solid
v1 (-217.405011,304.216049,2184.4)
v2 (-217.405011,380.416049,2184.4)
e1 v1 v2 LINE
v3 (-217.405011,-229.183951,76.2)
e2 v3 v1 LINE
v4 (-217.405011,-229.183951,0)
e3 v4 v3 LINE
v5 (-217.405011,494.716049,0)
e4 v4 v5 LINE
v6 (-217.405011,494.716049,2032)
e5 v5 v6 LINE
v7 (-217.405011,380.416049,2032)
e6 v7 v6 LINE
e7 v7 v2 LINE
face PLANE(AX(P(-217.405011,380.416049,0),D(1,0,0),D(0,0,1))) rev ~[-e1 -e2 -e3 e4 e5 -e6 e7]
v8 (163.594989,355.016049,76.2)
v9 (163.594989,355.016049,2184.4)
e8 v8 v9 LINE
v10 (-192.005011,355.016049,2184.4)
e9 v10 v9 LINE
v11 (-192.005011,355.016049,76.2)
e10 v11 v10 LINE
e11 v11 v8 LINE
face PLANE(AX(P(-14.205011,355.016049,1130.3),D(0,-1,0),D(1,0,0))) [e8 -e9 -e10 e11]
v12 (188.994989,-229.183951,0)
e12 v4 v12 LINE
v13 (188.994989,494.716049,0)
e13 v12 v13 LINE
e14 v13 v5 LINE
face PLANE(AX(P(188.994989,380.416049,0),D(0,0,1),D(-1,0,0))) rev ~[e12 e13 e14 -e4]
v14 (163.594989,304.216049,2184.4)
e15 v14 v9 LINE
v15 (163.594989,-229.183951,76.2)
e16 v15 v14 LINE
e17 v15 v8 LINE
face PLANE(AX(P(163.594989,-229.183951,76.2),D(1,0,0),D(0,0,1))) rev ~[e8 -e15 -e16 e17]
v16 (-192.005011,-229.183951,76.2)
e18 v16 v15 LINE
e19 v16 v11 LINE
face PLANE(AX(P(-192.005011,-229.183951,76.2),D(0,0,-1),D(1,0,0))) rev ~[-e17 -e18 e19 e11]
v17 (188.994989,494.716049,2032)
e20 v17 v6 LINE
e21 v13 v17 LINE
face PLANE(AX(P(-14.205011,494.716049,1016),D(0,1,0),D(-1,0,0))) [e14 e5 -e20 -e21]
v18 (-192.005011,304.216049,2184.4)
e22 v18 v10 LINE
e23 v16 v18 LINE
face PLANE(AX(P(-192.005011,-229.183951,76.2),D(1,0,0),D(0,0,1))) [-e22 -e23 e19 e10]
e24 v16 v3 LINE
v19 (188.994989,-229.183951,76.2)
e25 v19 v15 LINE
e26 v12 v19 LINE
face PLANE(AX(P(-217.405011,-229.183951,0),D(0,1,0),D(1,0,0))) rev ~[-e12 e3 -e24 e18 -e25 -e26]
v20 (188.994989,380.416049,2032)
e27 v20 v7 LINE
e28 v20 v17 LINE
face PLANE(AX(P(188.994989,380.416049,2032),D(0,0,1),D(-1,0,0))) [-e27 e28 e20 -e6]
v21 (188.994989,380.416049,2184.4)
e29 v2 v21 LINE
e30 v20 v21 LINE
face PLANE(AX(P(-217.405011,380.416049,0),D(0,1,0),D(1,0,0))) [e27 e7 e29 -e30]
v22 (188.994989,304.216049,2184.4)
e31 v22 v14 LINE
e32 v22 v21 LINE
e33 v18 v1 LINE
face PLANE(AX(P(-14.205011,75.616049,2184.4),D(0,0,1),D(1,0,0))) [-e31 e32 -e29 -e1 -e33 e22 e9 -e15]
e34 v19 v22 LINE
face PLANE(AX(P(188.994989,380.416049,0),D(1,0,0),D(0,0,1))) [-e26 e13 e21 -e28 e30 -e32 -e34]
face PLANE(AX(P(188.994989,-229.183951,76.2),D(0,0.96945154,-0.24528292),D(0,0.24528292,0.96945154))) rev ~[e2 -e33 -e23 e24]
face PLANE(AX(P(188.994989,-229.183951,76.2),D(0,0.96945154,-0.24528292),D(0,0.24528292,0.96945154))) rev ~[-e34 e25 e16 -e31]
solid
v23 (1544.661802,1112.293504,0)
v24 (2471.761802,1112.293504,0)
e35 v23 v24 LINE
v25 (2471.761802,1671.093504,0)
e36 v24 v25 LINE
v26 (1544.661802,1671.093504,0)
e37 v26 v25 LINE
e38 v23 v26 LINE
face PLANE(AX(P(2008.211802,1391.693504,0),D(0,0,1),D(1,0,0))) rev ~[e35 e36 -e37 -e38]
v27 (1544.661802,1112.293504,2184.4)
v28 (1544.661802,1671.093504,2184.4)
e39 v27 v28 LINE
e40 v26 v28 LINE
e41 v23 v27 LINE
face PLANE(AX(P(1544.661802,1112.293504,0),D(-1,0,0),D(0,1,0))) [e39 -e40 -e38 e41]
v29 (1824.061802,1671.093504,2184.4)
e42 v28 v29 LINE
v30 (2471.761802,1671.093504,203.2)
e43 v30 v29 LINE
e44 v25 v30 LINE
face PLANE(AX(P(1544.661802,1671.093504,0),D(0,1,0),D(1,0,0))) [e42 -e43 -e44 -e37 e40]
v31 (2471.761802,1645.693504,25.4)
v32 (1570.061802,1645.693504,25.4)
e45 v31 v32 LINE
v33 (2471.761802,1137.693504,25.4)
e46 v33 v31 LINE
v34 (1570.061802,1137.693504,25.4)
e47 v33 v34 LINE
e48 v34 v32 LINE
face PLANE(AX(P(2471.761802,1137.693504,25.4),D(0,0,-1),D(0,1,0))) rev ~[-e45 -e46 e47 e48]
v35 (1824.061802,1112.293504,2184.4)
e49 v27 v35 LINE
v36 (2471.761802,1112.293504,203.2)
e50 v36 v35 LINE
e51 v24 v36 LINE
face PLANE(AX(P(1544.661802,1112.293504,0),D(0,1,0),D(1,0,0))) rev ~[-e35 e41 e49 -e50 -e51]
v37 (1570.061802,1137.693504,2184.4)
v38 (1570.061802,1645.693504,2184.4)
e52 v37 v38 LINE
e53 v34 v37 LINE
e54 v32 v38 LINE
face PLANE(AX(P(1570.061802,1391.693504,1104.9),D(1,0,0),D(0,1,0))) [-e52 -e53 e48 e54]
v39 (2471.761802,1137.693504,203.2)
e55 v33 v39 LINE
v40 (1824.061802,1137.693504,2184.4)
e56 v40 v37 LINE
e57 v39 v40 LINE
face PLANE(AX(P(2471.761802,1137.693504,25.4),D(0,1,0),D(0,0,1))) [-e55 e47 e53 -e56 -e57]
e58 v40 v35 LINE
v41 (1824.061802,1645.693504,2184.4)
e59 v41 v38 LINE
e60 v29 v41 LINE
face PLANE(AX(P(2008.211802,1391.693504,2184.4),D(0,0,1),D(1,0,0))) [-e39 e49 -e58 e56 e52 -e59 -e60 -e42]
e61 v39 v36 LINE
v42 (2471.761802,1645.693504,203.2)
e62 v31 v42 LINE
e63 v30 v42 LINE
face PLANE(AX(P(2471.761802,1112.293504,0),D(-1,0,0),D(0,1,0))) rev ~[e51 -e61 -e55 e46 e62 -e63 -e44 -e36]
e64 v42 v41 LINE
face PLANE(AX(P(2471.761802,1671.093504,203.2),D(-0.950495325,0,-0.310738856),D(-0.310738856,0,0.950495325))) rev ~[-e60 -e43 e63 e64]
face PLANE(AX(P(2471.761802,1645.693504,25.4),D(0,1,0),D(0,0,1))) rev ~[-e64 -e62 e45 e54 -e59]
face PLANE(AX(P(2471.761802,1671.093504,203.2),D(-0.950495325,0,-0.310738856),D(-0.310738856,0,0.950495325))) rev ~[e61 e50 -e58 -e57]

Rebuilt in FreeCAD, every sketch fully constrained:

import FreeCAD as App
import Part
import Sketcher
Q = App.Units.Quantity

doc = App.newDocument("Part")
body = doc.addObject("PartDesign::Body", "Body")

# Sketch on XY plane
sketch1 = body.newObject("Sketcher::SketchObject", "Sketch")
sketch1.AttachmentSupport = (doc.getObject("XY_Plane"), [""])
sketch1.MapMode = "FlatFace"
sketch1.addGeometry([
    Part.LineSegment(App.Vector(-217, 380, 0), App.Vector(-217, -229, 0)),
    Part.LineSegment(App.Vector(-217, -229, 0), App.Vector(189, -229, 0)),
    Part.LineSegment(App.Vector(189, -229, 0), App.Vector(189, 380, 0)),
    Part.LineSegment(App.Vector(189, 380, 0), App.Vector(-217, 380, 0)),
], False)
sketch1.addConstraint([
    Sketcher.Constraint("Coincident", 0, 2, 1, 1),
    Sketcher.Constraint("Coincident", 1, 2, 2, 1),
    Sketcher.Constraint("Coincident", 2, 2, 3, 1),
    Sketcher.Constraint("Coincident", 3, 2, 0, 1),
    Sketcher.Constraint("Vertical", 0),
    Sketcher.Constraint("Horizontal", 1),
    Sketcher.Constraint("Vertical", 2),
    Sketcher.Constraint("Horizontal", 3),
    Sketcher.Constraint("DistanceX", 1, 1, 1, 2, Q("16 in")),
    Sketcher.Constraint("DistanceY", 0, 2, 0, 1, Q("24 in")),
    Sketcher.Constraint("DistanceX", 0, 2, -1, 1, 217.405011),
    Sketcher.Constraint("DistanceY", 0, 2, -1, 1, 229.183951),
])
pad1 = body.newObject("PartDesign::Pad", "Pad")
pad1.Profile = sketch1
pad1.Length = Q("86 in")

# Sketch on XZ plane
sketch2 = body.newObject("Sketcher::SketchObject", "Sketch001")
sketch2.AttachmentSupport = (doc.getObject("XZ_Plane"), [""])
sketch2.MapMode = "FlatFace"
sketch2.AttachmentOffset = App.Placement(App.Vector(0, 0, 229.183951), App.Rotation())
sketch2.addGeometry([
    Part.LineSegment(App.Vector(-192, 2184, 0), App.Vector(-192, 76, 0)),
    Part.LineSegment(App.Vector(-192, 76, 0), App.Vector(164, 76, 0)),
    Part.LineSegment(App.Vector(164, 76, 0), App.Vector(164, 2184, 0)),
    Part.LineSegment(App.Vector(164, 2184, 0), App.Vector(-192, 2184, 0)),
], False)
sketch2.addConstraint([
    Sketcher.Constraint("Coincident", 0, 2, 1, 1),
    Sketcher.Constraint("Coincident", 1, 2, 2, 1),
    Sketcher.Constraint("Coincident", 2, 2, 3, 1),
    Sketcher.Constraint("Coincident", 3, 2, 0, 1),
    Sketcher.Constraint("Vertical", 0),
    Sketcher.Constraint("Horizontal", 1),
    Sketcher.Constraint("Vertical", 2),
    Sketcher.Constraint("Horizontal", 3),
    Sketcher.Constraint("DistanceX", 1, 1, 1, 2, Q("14 in")),
    Sketcher.Constraint("DistanceY", 0, 2, 0, 1, Q("83 in")),
    Sketcher.Constraint("DistanceY", -1, 1, 0, 2, Q("3 in")),
    Sketcher.Constraint("DistanceX", 0, 2, -1, 1, 192.005011),
])
pocket1 = body.newObject("PartDesign::Pocket", "Pocket")
pocket1.Profile = sketch2
pocket1.Length = Q("23 in")

# Sketch on YZ plane
sketch3 = body.newObject("Sketcher::SketchObject", "Sketch002")
sketch3.AttachmentSupport = (doc.getObject("YZ_Plane"), [""])
sketch3.MapMode = "FlatFace"
sketch3.AttachmentOffset = App.Placement(App.Vector(0, 0, 188.994989), App.Rotation())
sketch3.addGeometry([
    Part.LineSegment(App.Vector(-229, 2184, 0), App.Vector(-229, 76, 0)),
    Part.LineSegment(App.Vector(-229, 76, 0), App.Vector(304, 2184, 0)),
    Part.LineSegment(App.Vector(304, 2184, 0), App.Vector(-229, 2184, 0)),
], False)
sketch3.addConstraint([
    Sketcher.Constraint("Coincident", 0, 2, 1, 1),
    Sketcher.Constraint("Coincident", 1, 2, 2, 1),
    Sketcher.Constraint("Coincident", 2, 2, 0, 1),
    Sketcher.Constraint("Vertical", 0),
    Sketcher.Constraint("Horizontal", 2),
    Sketcher.Constraint("DistanceX", 2, 2, 2, 1, Q("21 in")),
    Sketcher.Constraint("DistanceY", 0, 2, 0, 1, Q("83 in")),
    Sketcher.Constraint("DistanceY", -1, 1, 0, 2, Q("3 in")),
    Sketcher.Constraint("DistanceX", 0, 2, -1, 1, 229.183951),
])
pocket2 = body.newObject("PartDesign::Pocket", "Pocket001")
pocket2.Profile = sketch3
pocket2.Length = Q("16 in")

# Sketch on XZ plane
sketch4 = body.newObject("Sketcher::SketchObject", "Sketch003")
sketch4.AttachmentSupport = (doc.getObject("XZ_Plane"), [""])
sketch4.MapMode = "FlatFace"
sketch4.AttachmentOffset = App.Placement(App.Vector(0, 0, -380.416049), App.Rotation())
sketch4.addGeometry([
    Part.LineSegment(App.Vector(189, 2032, 0), App.Vector(189, 0, 0)),
    Part.LineSegment(App.Vector(189, 0, 0), App.Vector(-217, 0, 0)),
    Part.LineSegment(App.Vector(-217, 0, 0), App.Vector(-217, 2032, 0)),
    Part.LineSegment(App.Vector(-217, 2032, 0), App.Vector(189, 2032, 0)),
], False)
sketch4.addConstraint([
    Sketcher.Constraint("Coincident", 0, 2, 1, 1),
    Sketcher.Constraint("Coincident", 1, 2, 2, 1),
    Sketcher.Constraint("Coincident", 2, 2, 3, 1),
    Sketcher.Constraint("Coincident", 3, 2, 0, 1),
    Sketcher.Constraint("Vertical", 0),
    Sketcher.Constraint("Horizontal", 1),
    Sketcher.Constraint("Vertical", 2),
    Sketcher.Constraint("Horizontal", 3),
    Sketcher.Constraint("PointOnObject", 0, 2, -1),
    Sketcher.Constraint("DistanceX", 1, 2, 1, 1, Q("16 in")),
    Sketcher.Constraint("DistanceY", 0, 2, 0, 1, Q("80 in")),
    Sketcher.Constraint("DistanceX", -1, 1, 0, 2, 188.994989),
])
pad2 = body.newObject("PartDesign::Pad", "Pad001")
pad2.Profile = sketch4
pad2.Length = Q("4.5 in")
pad2.Reversed = True
body2 = doc.addObject("PartDesign::Body", "Body001")

# Sketch on XY plane
sketch5 = body2.newObject("Sketcher::SketchObject", "Sketch004")
sketch5.AttachmentSupport = (doc.getObject("XY_Plane001"), [""])
sketch5.MapMode = "FlatFace"
sketch5.addGeometry([
    Part.LineSegment(App.Vector(1545, 1671, 0), App.Vector(1545, 1112, 0)),
    Part.LineSegment(App.Vector(1545, 1112, 0), App.Vector(2472, 1112, 0)),
    Part.LineSegment(App.Vector(2472, 1112, 0), App.Vector(2472, 1671, 0)),
    Part.LineSegment(App.Vector(2472, 1671, 0), App.Vector(1545, 1671, 0)),
], False)
sketch5.addConstraint([
    Sketcher.Constraint("Coincident", 0, 2, 1, 1),
    Sketcher.Constraint("Coincident", 1, 2, 2, 1),
    Sketcher.Constraint("Coincident", 2, 2, 3, 1),
    Sketcher.Constraint("Coincident", 3, 2, 0, 1),
    Sketcher.Constraint("Vertical", 0),
    Sketcher.Constraint("Horizontal", 1),
    Sketcher.Constraint("Vertical", 2),
    Sketcher.Constraint("Horizontal", 3),
    Sketcher.Constraint("DistanceY", 0, 2, 0, 1, Q("22 in")),
    Sketcher.Constraint("DistanceX", 1, 1, 1, 2, Q("36.5 in")),
    Sketcher.Constraint("DistanceX", -1, 1, 0, 2, 1544.661802),
    Sketcher.Constraint("DistanceY", -1, 1, 0, 2, 1112.293504),
])
pad3 = body2.newObject("PartDesign::Pad", "Pad002")
pad3.Profile = sketch5
pad3.Length = Q("86 in")

# Sketch on YZ plane
sketch6 = body2.newObject("Sketcher::SketchObject", "Sketch005")
sketch6.AttachmentSupport = (doc.getObject("YZ_Plane001"), [""])
sketch6.MapMode = "FlatFace"
sketch6.AttachmentOffset = App.Placement(App.Vector(0, 0, 2471.761802), App.Rotation())
sketch6.addGeometry([
    Part.LineSegment(App.Vector(1138, 2184, 0), App.Vector(1138, 25, 0)),
    Part.LineSegment(App.Vector(1138, 25, 0), App.Vector(1646, 25, 0)),
    Part.LineSegment(App.Vector(1646, 25, 0), App.Vector(1646, 2184, 0)),
    Part.LineSegment(App.Vector(1646, 2184, 0), App.Vector(1138, 2184, 0)),
], False)
sketch6.addConstraint([
    Sketcher.Constraint("Coincident", 0, 2, 1, 1),
    Sketcher.Constraint("Coincident", 1, 2, 2, 1),
    Sketcher.Constraint("Coincident", 2, 2, 3, 1),
    Sketcher.Constraint("Coincident", 3, 2, 0, 1),
    Sketcher.Constraint("Vertical", 0),
    Sketcher.Constraint("Horizontal", 1),
    Sketcher.Constraint("Vertical", 2),
    Sketcher.Constraint("Horizontal", 3),
    Sketcher.Constraint("DistanceX", 1, 1, 1, 2, Q("20 in")),
    Sketcher.Constraint("DistanceY", 0, 2, 0, 1, Q("85 in")),
    Sketcher.Constraint("DistanceY", -1, 1, 0, 2, Q("1 in")),
    Sketcher.Constraint("DistanceX", -1, 1, 0, 2, 1137.693504),
])
pocket3 = body2.newObject("PartDesign::Pocket", "Pocket002")
pocket3.Profile = sketch6
pocket3.Length = Q("35.5 in")

# Sketch on XZ plane
sketch7 = body2.newObject("Sketcher::SketchObject", "Sketch006")
sketch7.AttachmentSupport = (doc.getObject("XZ_Plane001"), [""])
sketch7.MapMode = "FlatFace"
sketch7.AttachmentOffset = App.Placement(App.Vector(0, 0, -1671.093504), App.Rotation())
sketch7.addGeometry([
    Part.LineSegment(App.Vector(2472, 2184, 0), App.Vector(2472, 203, 0)),
    Part.LineSegment(App.Vector(2472, 203, 0), App.Vector(1824, 2184, 0)),
    Part.LineSegment(App.Vector(1824, 2184, 0), App.Vector(2472, 2184, 0)),
], False)
sketch7.addConstraint([
    Sketcher.Constraint("Coincident", 0, 2, 1, 1),
    Sketcher.Constraint("Coincident", 1, 2, 2, 1),
    Sketcher.Constraint("Coincident", 2, 2, 0, 1),
    Sketcher.Constraint("Vertical", 0),
    Sketcher.Constraint("Horizontal", 2),
    Sketcher.Constraint("DistanceY", 0, 2, 0, 1, Q("78 in")),
    Sketcher.Constraint("DistanceX", 2, 1, 2, 2, Q("25.5 in")),
    Sketcher.Constraint("DistanceY", -1, 1, 0, 2, Q("8 in")),
    Sketcher.Constraint("DistanceX", -1, 1, 0, 2, 2471.761802),
])
pocket4 = body2.newObject("PartDesign::Pocket", "Pocket003")
pocket4.Profile = sketch7
pocket4.Length = Q("22 in")
pocket4.Reversed = True

doc.recompute()
